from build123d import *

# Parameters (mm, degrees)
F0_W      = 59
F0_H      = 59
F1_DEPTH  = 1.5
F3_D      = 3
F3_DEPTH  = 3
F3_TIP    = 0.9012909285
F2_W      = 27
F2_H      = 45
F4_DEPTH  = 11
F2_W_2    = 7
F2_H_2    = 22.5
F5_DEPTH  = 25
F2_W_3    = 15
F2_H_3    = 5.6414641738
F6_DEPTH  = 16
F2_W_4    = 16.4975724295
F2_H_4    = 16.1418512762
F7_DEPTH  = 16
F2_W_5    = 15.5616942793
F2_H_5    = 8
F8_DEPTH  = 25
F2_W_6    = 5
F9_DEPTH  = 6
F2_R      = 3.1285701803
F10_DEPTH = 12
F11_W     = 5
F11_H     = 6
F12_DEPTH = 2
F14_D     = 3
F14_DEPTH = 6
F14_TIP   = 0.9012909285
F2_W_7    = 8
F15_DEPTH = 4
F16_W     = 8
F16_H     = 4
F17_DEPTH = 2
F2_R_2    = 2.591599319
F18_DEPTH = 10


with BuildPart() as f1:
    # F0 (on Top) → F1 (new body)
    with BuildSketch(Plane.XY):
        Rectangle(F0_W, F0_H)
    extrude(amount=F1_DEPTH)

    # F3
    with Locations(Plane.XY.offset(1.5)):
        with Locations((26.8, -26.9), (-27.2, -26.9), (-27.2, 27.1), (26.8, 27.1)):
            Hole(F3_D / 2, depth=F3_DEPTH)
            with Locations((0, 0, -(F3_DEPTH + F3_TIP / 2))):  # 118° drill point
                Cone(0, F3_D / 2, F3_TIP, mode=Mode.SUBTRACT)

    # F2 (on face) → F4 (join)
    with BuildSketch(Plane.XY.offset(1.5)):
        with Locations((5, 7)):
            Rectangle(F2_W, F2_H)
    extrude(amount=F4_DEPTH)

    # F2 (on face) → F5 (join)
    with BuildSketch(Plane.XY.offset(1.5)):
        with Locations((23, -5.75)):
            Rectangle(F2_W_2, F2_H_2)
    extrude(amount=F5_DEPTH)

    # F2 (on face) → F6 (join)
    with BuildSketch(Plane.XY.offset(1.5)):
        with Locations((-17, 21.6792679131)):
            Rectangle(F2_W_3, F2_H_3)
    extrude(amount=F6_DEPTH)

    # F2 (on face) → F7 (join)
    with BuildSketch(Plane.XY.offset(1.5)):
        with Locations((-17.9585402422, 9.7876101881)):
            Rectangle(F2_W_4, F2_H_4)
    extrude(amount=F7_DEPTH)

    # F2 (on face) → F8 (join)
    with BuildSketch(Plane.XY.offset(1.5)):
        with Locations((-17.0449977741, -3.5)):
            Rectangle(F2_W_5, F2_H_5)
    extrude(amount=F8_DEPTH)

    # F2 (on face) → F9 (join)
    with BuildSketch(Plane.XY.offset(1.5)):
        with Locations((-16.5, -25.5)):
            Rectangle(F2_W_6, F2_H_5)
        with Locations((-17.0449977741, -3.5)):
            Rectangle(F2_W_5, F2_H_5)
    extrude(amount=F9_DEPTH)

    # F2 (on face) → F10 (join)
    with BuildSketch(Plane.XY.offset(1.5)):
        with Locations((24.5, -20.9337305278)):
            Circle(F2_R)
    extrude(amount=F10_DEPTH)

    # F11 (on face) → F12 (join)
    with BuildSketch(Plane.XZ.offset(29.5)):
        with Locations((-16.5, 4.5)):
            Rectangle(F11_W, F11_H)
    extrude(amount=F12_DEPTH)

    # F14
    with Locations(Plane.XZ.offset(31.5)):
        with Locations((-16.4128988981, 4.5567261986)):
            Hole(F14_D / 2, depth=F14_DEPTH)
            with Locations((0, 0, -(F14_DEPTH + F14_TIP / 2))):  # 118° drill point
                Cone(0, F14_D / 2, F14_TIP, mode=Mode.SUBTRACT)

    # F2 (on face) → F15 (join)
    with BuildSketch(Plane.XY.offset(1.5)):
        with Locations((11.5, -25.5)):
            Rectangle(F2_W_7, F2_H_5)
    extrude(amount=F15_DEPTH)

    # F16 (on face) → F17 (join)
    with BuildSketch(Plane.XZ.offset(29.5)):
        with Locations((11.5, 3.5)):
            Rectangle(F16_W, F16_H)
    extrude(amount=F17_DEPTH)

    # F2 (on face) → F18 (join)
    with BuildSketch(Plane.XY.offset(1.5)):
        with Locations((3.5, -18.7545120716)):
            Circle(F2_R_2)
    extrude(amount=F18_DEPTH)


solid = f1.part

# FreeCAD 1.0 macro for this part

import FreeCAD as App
import Part
import Sketcher

doc = App.newDocument("Part")
body = doc.addObject("PartDesign::Body", "Body")

# Sketch on XY plane
sketch1 = body.newObject("Sketcher::SketchObject", "Sketch")
sketch1.AttachmentSupport = (doc.getObject("XY_Plane"), [""])
sketch1.MapMode = "FlatFace"
sketch1.addGeometry(Part.LineSegment(App.Vector(-29.5, 29.5, 0), App.Vector(-29.5, -29.5, 0)), False)
sketch1.addGeometry(Part.LineSegment(App.Vector(-29.5, -29.5, 0), App.Vector(29.5, -29.5, 0)), False)
sketch1.addGeometry(Part.LineSegment(App.Vector(29.5, -29.5, 0), App.Vector(29.5, 29.5, 0)), False)
sketch1.addGeometry(Part.LineSegment(App.Vector(29.5, 29.5, 0), App.Vector(-29.5, 29.5, 0)), False)
sketch1.addConstraint(Sketcher.Constraint("Coincident", 0, 2, 1, 1))
sketch1.addConstraint(Sketcher.Constraint("Coincident", 1, 2, 2, 1))
sketch1.addConstraint(Sketcher.Constraint("Coincident", 2, 2, 3, 1))
sketch1.addConstraint(Sketcher.Constraint("Coincident", 3, 2, 0, 1))
sketch1.addConstraint(Sketcher.Constraint("Vertical", 0))
sketch1.addConstraint(Sketcher.Constraint("Horizontal", 1))
sketch1.addConstraint(Sketcher.Constraint("Vertical", 2))
sketch1.addConstraint(Sketcher.Constraint("Horizontal", 3))
sketch1.addConstraint(Sketcher.Constraint("Symmetric", 0, 2, 2, 2, -1, 1))
sketch1.addConstraint(Sketcher.Constraint("Equal", 3, 0))
sketch1.addConstraint(Sketcher.Constraint("DistanceX", 1, 1, 1, 2, 59.0))
pad1 = body.newObject("PartDesign::Pad", "Pad")
pad1.Profile = sketch1
pad1.Length = 1.5

# Sketch on XY plane
sketch2 = body.newObject("Sketcher::SketchObject", "Sketch001")
sketch2.AttachmentSupport = (doc.getObject("XY_Plane"), [""])
sketch2.MapMode = "FlatFace"
sketch2.AttachmentOffset = App.Placement(App.Vector(0, 0, 1.5), App.Rotation())
sketch2.addGeometry(Part.Circle(App.Vector(26.8, -26.9, 0), App.Vector(0, 0, 1), 1.5), False)
sketch2.addGeometry(Part.Circle(App.Vector(-27.2, -26.9, 0), App.Vector(0, 0, 1), 1.5), False)
sketch2.addGeometry(Part.Circle(App.Vector(-27.2, 27.1, 0), App.Vector(0, 0, 1), 1.5), False)
sketch2.addGeometry(Part.Circle(App.Vector(26.8, 27.1, 0), App.Vector(0, 0, 1), 1.5), False)
sketch2.addConstraint(Sketcher.Constraint("Equal", 0, 1))
sketch2.addConstraint(Sketcher.Constraint("Equal", 1, 2))
sketch2.addConstraint(Sketcher.Constraint("Equal", 2, 3))
sketch2.addConstraint(Sketcher.Constraint("Horizontal", 0, 3, 1, 3))
sketch2.addConstraint(Sketcher.Constraint("Horizontal", 2, 3, 3, 3))
sketch2.addConstraint(Sketcher.Constraint("Vertical", 1, 3, 2, 3))
sketch2.addConstraint(Sketcher.Constraint("Vertical", 0, 3, 3, 3))
sketch2.addConstraint(Sketcher.Constraint("Diameter", 0, 3.0))
sketch2.addConstraint(Sketcher.Constraint("DistanceX", 1, 3, 0, 3, 54.0))
sketch2.addConstraint(Sketcher.Constraint("DistanceY", 1, 3, 2, 3, 54.0))
sketch2.addConstraint(Sketcher.Constraint("DistanceX", -1, 1, 0, 3, 26.8))
sketch2.addConstraint(Sketcher.Constraint("DistanceY", 0, 3, -1, 1, 26.9))
doc.recompute()
hole = body.newObject("PartDesign::Hole", "Hole")
hole.Profile = sketch2
hole.ThreadType = "None"
hole.Diameter = 3
hole.DepthType = "Dimension"
hole.Depth = 3
hole.DrillPoint = "Angled"
hole.DrillPointAngle = 118

# Sketch on XY plane
sketch3 = body.newObject("Sketcher::SketchObject", "Sketch002")
sketch3.AttachmentSupport = (doc.getObject("XY_Plane"), [""])
sketch3.MapMode = "FlatFace"
sketch3.AttachmentOffset = App.Placement(App.Vector(0, 0, 1.5), App.Rotation())
sketch3.addGeometry(Part.LineSegment(App.Vector(-8.5, 29.5, 0), App.Vector(-8.5, -15.5, 0)), False)
sketch3.addGeometry(Part.LineSegment(App.Vector(-8.5, -15.5, 0), App.Vector(18.5, -15.5, 0)), False)
sketch3.addGeometry(Part.LineSegment(App.Vector(18.5, -15.5, 0), App.Vector(18.5, 29.5, 0)), False)
sketch3.addGeometry(Part.LineSegment(App.Vector(18.5, 29.5, 0), App.Vector(-8.5, 29.5, 0)), False)
sketch3.addConstraint(Sketcher.Constraint("Coincident", 0, 2, 1, 1))
sketch3.addConstraint(Sketcher.Constraint("Coincident", 1, 2, 2, 1))
sketch3.addConstraint(Sketcher.Constraint("Coincident", 2, 2, 3, 1))
sketch3.addConstraint(Sketcher.Constraint("Coincident", 3, 2, 0, 1))
sketch3.addConstraint(Sketcher.Constraint("Vertical", 0))
sketch3.addConstraint(Sketcher.Constraint("Horizontal", 1))
sketch3.addConstraint(Sketcher.Constraint("Vertical", 2))
sketch3.addConstraint(Sketcher.Constraint("Horizontal", 3))
sketch3.addConstraint(Sketcher.Constraint("DistanceX", 1, 1, 1, 2, 27.0))
sketch3.addConstraint(Sketcher.Constraint("DistanceY", 0, 2, 0, 1, 45.0))
sketch3.addConstraint(Sketcher.Constraint("DistanceX", 0, 2, -1, 1, 8.5))
sketch3.addConstraint(Sketcher.Constraint("DistanceY", 0, 2, -1, 1, 15.5))
pad2 = body.newObject("PartDesign::Pad", "Pad001")
pad2.Profile = sketch3
pad2.Length = 11

# Sketch on XY plane
sketch4 = body.newObject("Sketcher::SketchObject", "Sketch003")
sketch4.AttachmentSupport = (doc.getObject("XY_Plane"), [""])
sketch4.MapMode = "FlatFace"
sketch4.AttachmentOffset = App.Placement(App.Vector(0, 0, 1.5), App.Rotation())
sketch4.addGeometry(Part.LineSegment(App.Vector(19.5, 5.5, 0), App.Vector(19.5, -17, 0)), False)
sketch4.addGeometry(Part.LineSegment(App.Vector(19.5, -17, 0), App.Vector(26.5, -17, 0)), False)
sketch4.addGeometry(Part.LineSegment(App.Vector(26.5, -17, 0), App.Vector(26.5, 5.5, 0)), False)
sketch4.addGeometry(Part.LineSegment(App.Vector(26.5, 5.5, 0), App.Vector(19.5, 5.5, 0)), False)
sketch4.addConstraint(Sketcher.Constraint("Coincident", 0, 2, 1, 1))
sketch4.addConstraint(Sketcher.Constraint("Coincident", 1, 2, 2, 1))
sketch4.addConstraint(Sketcher.Constraint("Coincident", 2, 2, 3, 1))
sketch4.addConstraint(Sketcher.Constraint("Coincident", 3, 2, 0, 1))
sketch4.addConstraint(Sketcher.Constraint("Vertical", 0))
sketch4.addConstraint(Sketcher.Constraint("Horizontal", 1))
sketch4.addConstraint(Sketcher.Constraint("Vertical", 2))
sketch4.addConstraint(Sketcher.Constraint("Horizontal", 3))
sketch4.addConstraint(Sketcher.Constraint("DistanceX", 1, 1, 1, 2, 7.0))
sketch4.addConstraint(Sketcher.Constraint("DistanceY", 0, 2, 0, 1, 22.5))
sketch4.addConstraint(Sketcher.Constraint("DistanceY", 0, 2, -1, 1, 17.0))
sketch4.addConstraint(Sketcher.Constraint("DistanceX", -1, 1, 0, 2, 19.5))
pad3 = body.newObject("PartDesign::Pad", "Pad002")
pad3.Profile = sketch4
pad3.Length = 25

# Sketch on XY plane
sketch5 = body.newObject("Sketcher::SketchObject", "Sketch004")
sketch5.AttachmentSupport = (doc.getObject("XY_Plane"), [""])
sketch5.MapMode = "FlatFace"
sketch5.AttachmentOffset = App.Placement(App.Vector(0, 0, 1.5), App.Rotation())
sketch5.addGeometry(Part.LineSegment(App.Vector(-24.5, 24.5, 0), App.Vector(-24.5, 18.858536, 0)), False)
sketch5.addGeometry(Part.LineSegment(App.Vector(-24.5, 18.858536, 0), App.Vector(-9.5, 18.858536, 0)), False)
sketch5.addGeometry(Part.LineSegment(App.Vector(-9.5, 18.858536, 0), App.Vector(-9.5, 24.5, 0)), False)
sketch5.addGeometry(Part.LineSegment(App.Vector(-9.5, 24.5, 0), App.Vector(-24.5, 24.5, 0)), False)
sketch5.addConstraint(Sketcher.Constraint("Coincident", 0, 2, 1, 1))
sketch5.addConstraint(Sketcher.Constraint("Coincident", 1, 2, 2, 1))
sketch5.addConstraint(Sketcher.Constraint("Coincident", 2, 2, 3, 1))
sketch5.addConstraint(Sketcher.Constraint("Coincident", 3, 2, 0, 1))
sketch5.addConstraint(Sketcher.Constraint("Vertical", 0))
sketch5.addConstraint(Sketcher.Constraint("Horizontal", 1))
sketch5.addConstraint(Sketcher.Constraint("Vertical", 2))
sketch5.addConstraint(Sketcher.Constraint("Horizontal", 3))
sketch5.addConstraint(Sketcher.Constraint("DistanceX", 1, 1, 1, 2, 15.0))
sketch5.addConstraint(Sketcher.Constraint("DistanceX", 0, 2, -1, 1, 24.5))
sketch5.addConstraint(Sketcher.Constraint("DistanceY", -1, 1, 2, 2, 24.5))
sketch5.addConstraint(Sketcher.Constraint("DistanceY", 0, 2, 0, 1, 5.641464))
pad4 = body.newObject("PartDesign::Pad", "Pad003")
pad4.Profile = sketch5
pad4.Length = 16

# Sketch on XY plane
sketch6 = body.newObject("Sketcher::SketchObject", "Sketch005")
sketch6.AttachmentSupport = (doc.getObject("XY_Plane"), [""])
sketch6.MapMode = "FlatFace"
sketch6.AttachmentOffset = App.Placement(App.Vector(0, 0, 1.5), App.Rotation())
sketch6.addGeometry(Part.LineSegment(App.Vector(-26.207326, 17.858536, 0), App.Vector(-26.207326, 1.716685, 0)), False)
sketch6.addGeometry(Part.LineSegment(App.Vector(-26.207326, 1.716685, 0), App.Vector(-9.709754, 1.716685, 0)), False)
sketch6.addGeometry(Part.LineSegment(App.Vector(-9.709754, 1.716685, 0), App.Vector(-9.709754, 17.858536, 0)), False)
sketch6.addGeometry(Part.LineSegment(App.Vector(-9.709754, 17.858536, 0), App.Vector(-26.207326, 17.858536, 0)), False)
sketch6.addConstraint(Sketcher.Constraint("Coincident", 0, 2, 1, 1))
sketch6.addConstraint(Sketcher.Constraint("Coincident", 1, 2, 2, 1))
sketch6.addConstraint(Sketcher.Constraint("Coincident", 2, 2, 3, 1))
sketch6.addConstraint(Sketcher.Constraint("Coincident", 3, 2, 0, 1))
sketch6.addConstraint(Sketcher.Constraint("Vertical", 0))
sketch6.addConstraint(Sketcher.Constraint("Horizontal", 1))
sketch6.addConstraint(Sketcher.Constraint("Vertical", 2))
sketch6.addConstraint(Sketcher.Constraint("Horizontal", 3))
sketch6.addConstraint(Sketcher.Constraint("DistanceY", 0, 2, 0, 1, 16.141851))
sketch6.addConstraint(Sketcher.Constraint("DistanceX", 1, 1, 1, 2, 16.497572))
sketch6.addConstraint(Sketcher.Constraint("DistanceX", 0, 2, -1, 1, 26.207326))
sketch6.addConstraint(Sketcher.Constraint("DistanceY", -1, 1, 0, 2, 1.716685))
pad5 = body.newObject("PartDesign::Pad", "Pad004")
pad5.Profile = sketch6
pad5.Length = 16

# Sketch on XY plane
sketch7 = body.newObject("Sketcher::SketchObject", "Sketch006")
sketch7.AttachmentSupport = (doc.getObject("XY_Plane"), [""])
sketch7.MapMode = "FlatFace"
sketch7.AttachmentOffset = App.Placement(App.Vector(0, 0, 1.5), App.Rotation())
sketch7.addGeometry(Part.LineSegment(App.Vector(-24.825845, 0.5, 0), App.Vector(-24.825845, -7.5, 0)), False)
sketch7.addGeometry(Part.LineSegment(App.Vector(-24.825845, -7.5, 0), App.Vector(-9.264151, -7.5, 0)), False)
sketch7.addGeometry(Part.LineSegment(App.Vector(-9.264151, -7.5, 0), App.Vector(-9.264151, 0.5, 0)), False)
sketch7.addGeometry(Part.LineSegment(App.Vector(-9.264151, 0.5, 0), App.Vector(-24.825845, 0.5, 0)), False)
sketch7.addConstraint(Sketcher.Constraint("Coincident", 0, 2, 1, 1))
sketch7.addConstraint(Sketcher.Constraint("Coincident", 1, 2, 2, 1))
sketch7.addConstraint(Sketcher.Constraint("Coincident", 2, 2, 3, 1))
sketch7.addConstraint(Sketcher.Constraint("Coincident", 3, 2, 0, 1))
sketch7.addConstraint(Sketcher.Constraint("Vertical", 0))
sketch7.addConstraint(Sketcher.Constraint("Horizontal", 1))
sketch7.addConstraint(Sketcher.Constraint("Vertical", 2))
sketch7.addConstraint(Sketcher.Constraint("Horizontal", 3))
sketch7.addConstraint(Sketcher.Constraint("DistanceY", 0, 2, 0, 1, 8.0))
sketch7.addConstraint(Sketcher.Constraint("DistanceY", 0, 2, -1, 1, 7.5))
sketch7.addConstraint(Sketcher.Constraint("DistanceX", 1, 1, 1, 2, 15.561694))
sketch7.addConstraint(Sketcher.Constraint("DistanceX", 1, 2, -1, 1, 9.264151))
pad6 = body.newObject("PartDesign::Pad", "Pad005")
pad6.Profile = sketch7
pad6.Length = 25

# Sketch on XY plane
sketch8 = body.newObject("Sketcher::SketchObject", "Sketch007")
sketch8.AttachmentSupport = (doc.getObject("XY_Plane"), [""])
sketch8.MapMode = "FlatFace"
sketch8.AttachmentOffset = App.Placement(App.Vector(0, 0, 1.5), App.Rotation())
sketch8.addGeometry(Part.LineSegment(App.Vector(-19, -21.5, 0), App.Vector(-19, -29.5, 0)), False)
sketch8.addGeometry(Part.LineSegment(App.Vector(-19, -29.5, 0), App.Vector(-14, -29.5, 0)), False)
sketch8.addGeometry(Part.LineSegment(App.Vector(-14, -29.5, 0), App.Vector(-14, -21.5, 0)), False)
sketch8.addGeometry(Part.LineSegment(App.Vector(-14, -21.5, 0), App.Vector(-19, -21.5, 0)), False)
sketch8.addGeometry(Part.LineSegment(App.Vector(-24.825845, 0.5, 0), App.Vector(-24.825845, -7.5, 0)), False)
sketch8.addGeometry(Part.LineSegment(App.Vector(-24.825845, -7.5, 0), App.Vector(-9.264151, -7.5, 0)), False)
sketch8.addGeometry(Part.LineSegment(App.Vector(-9.264151, -7.5, 0), App.Vector(-9.264151, 0.5, 0)), False)
sketch8.addGeometry(Part.LineSegment(App.Vector(-9.264151, 0.5, 0), App.Vector(-24.825845, 0.5, 0)), False)
sketch8.addConstraint(Sketcher.Constraint("Coincident", 0, 2, 1, 1))
sketch8.addConstraint(Sketcher.Constraint("Coincident", 1, 2, 2, 1))
sketch8.addConstraint(Sketcher.Constraint("Coincident", 2, 2, 3, 1))
sketch8.addConstraint(Sketcher.Constraint("Coincident", 3, 2, 0, 1))
sketch8.addConstraint(Sketcher.Constraint("Coincident", 4, 2, 5, 1))
sketch8.addConstraint(Sketcher.Constraint("Coincident", 5, 2, 6, 1))
sketch8.addConstraint(Sketcher.Constraint("Coincident", 6, 2, 7, 1))
sketch8.addConstraint(Sketcher.Constraint("Coincident", 7, 2, 4, 1))
sketch8.addConstraint(Sketcher.Constraint("Vertical", 0))
sketch8.addConstraint(Sketcher.Constraint("Horizontal", 1))
sketch8.addConstraint(Sketcher.Constraint("Vertical", 2))
sketch8.addConstraint(Sketcher.Constraint("Horizontal", 3))
sketch8.addConstraint(Sketcher.Constraint("Vertical", 4))
sketch8.addConstraint(Sketcher.Constraint("Horizontal", 5))
sketch8.addConstraint(Sketcher.Constraint("Vertical", 6))
sketch8.addConstraint(Sketcher.Constraint("Horizontal", 7))
sketch8.addConstraint(Sketcher.Constraint("Equal", 2, 4))
sketch8.addConstraint(Sketcher.Constraint("DistanceX", 1, 1, 1, 2, 5.0))
sketch8.addConstraint(Sketcher.Constraint("DistanceY", 0, 2, 0, 1, 8.0))
sketch8.addConstraint(Sketcher.Constraint("DistanceX", 0, 2, -1, 1, 19.0))
sketch8.addConstraint(Sketcher.Constraint("DistanceY", 3, 2, 4, 2, 14.0))
sketch8.addConstraint(Sketcher.Constraint("DistanceY", 0, 2, -1, 1, 29.5))
sketch8.addConstraint(Sketcher.Constraint("DistanceX", 5, 1, 5, 2, 15.561694))
sketch8.addConstraint(Sketcher.Constraint("DistanceX", 5, 2, -1, 1, 9.264151))
pad7 = body.newObject("PartDesign::Pad", "Pad006")
pad7.Profile = sketch8
pad7.Length = 6

# Sketch on XY plane
sketch9 = body.newObject("Sketcher::SketchObject", "Sketch008")
sketch9.AttachmentSupport = (doc.getObject("XY_Plane"), [""])
sketch9.MapMode = "FlatFace"
sketch9.AttachmentOffset = App.Placement(App.Vector(0, 0, 1.5), App.Rotation())
sketch9.addGeometry(Part.Circle(App.Vector(24.5, -20.933731, 0), App.Vector(0, 0, 1), 3.12857), False)
sketch9.addConstraint(Sketcher.Constraint("DistanceX", -1, 1, 0, 3, 24.5))
sketch9.addConstraint(Sketcher.Constraint("Diameter", 0, 6.25714))
sketch9.addConstraint(Sketcher.Constraint("DistanceY", 0, 3, -1, 1, 20.933731))
pad8 = body.newObject("PartDesign::Pad", "Pad007")
pad8.Profile = sketch9
pad8.Length = 12

# Sketch on XZ plane
sketch10 = body.newObject("Sketcher::SketchObject", "Sketch009")
sketch10.AttachmentSupport = (doc.getObject("XZ_Plane"), [""])
sketch10.MapMode = "FlatFace"
sketch10.AttachmentOffset = App.Placement(App.Vector(0, 0, 29.5), App.Rotation())
sketch10.addGeometry(Part.LineSegment(App.Vector(-19, 7.5, 0), App.Vector(-19, 1.5, 0)), False)
sketch10.addGeometry(Part.LineSegment(App.Vector(-19, 1.5, 0), App.Vector(-14, 1.5, 0)), False)
sketch10.addGeometry(Part.LineSegment(App.Vector(-14, 1.5, 0), App.Vector(-14, 7.5, 0)), False)
sketch10.addGeometry(Part.LineSegment(App.Vector(-14, 7.5, 0), App.Vector(-19, 7.5, 0)), False)
sketch10.addConstraint(Sketcher.Constraint("Coincident", 0, 2, 1, 1))
sketch10.addConstraint(Sketcher.Constraint("Coincident", 1, 2, 2, 1))
sketch10.addConstraint(Sketcher.Constraint("Coincident", 2, 2, 3, 1))
sketch10.addConstraint(Sketcher.Constraint("Coincident", 3, 2, 0, 1))
sketch10.addConstraint(Sketcher.Constraint("Vertical", 0))
sketch10.addConstraint(Sketcher.Constraint("Horizontal", 1))
sketch10.addConstraint(Sketcher.Constraint("Vertical", 2))
sketch10.addConstraint(Sketcher.Constraint("Horizontal", 3))
sketch10.addConstraint(Sketcher.Constraint("DistanceX", 1, 1, 1, 2, 5.0))
sketch10.addConstraint(Sketcher.Constraint("DistanceY", 0, 2, 0, 1, 6.0))
sketch10.addConstraint(Sketcher.Constraint("DistanceX", 0, 2, -1, 1, 19.0))
sketch10.addConstraint(Sketcher.Constraint("DistanceY", -1, 1, 0, 2, 1.5))
pad9 = body.newObject("PartDesign::Pad", "Pad008")
pad9.Profile = sketch10
pad9.Length = 2

# Sketch on XZ plane
sketch11 = body.newObject("Sketcher::SketchObject", "Sketch010")
sketch11.AttachmentSupport = (doc.getObject("XZ_Plane"), [""])
sketch11.MapMode = "FlatFace"
sketch11.AttachmentOffset = App.Placement(App.Vector(0, 0, 31.5), App.Rotation())
sketch11.addGeometry(Part.Circle(App.Vector(-16.412899, 4.556726, 0), App.Vector(0, 0, 1), 1.5), False)
sketch11.addConstraint(Sketcher.Constraint("Diameter", 0, 3.0))
sketch11.addConstraint(Sketcher.Constraint("DistanceX", 0, 3, -1, 1, 16.412899))
sketch11.addConstraint(Sketcher.Constraint("DistanceY", -1, 1, 0, 3, 4.556726))
doc.recompute()
hole2 = body.newObject("PartDesign::Hole", "Hole001")
hole2.Profile = sketch11
hole2.ThreadType = "None"
hole2.Diameter = 3
hole2.DepthType = "Dimension"
hole2.Depth = 6
hole2.DrillPoint = "Angled"
hole2.DrillPointAngle = 118

# Sketch on XY plane
sketch12 = body.newObject("Sketcher::SketchObject", "Sketch011")
sketch12.AttachmentSupport = (doc.getObject("XY_Plane"), [""])
sketch12.MapMode = "FlatFace"
sketch12.AttachmentOffset = App.Placement(App.Vector(0, 0, 1.5), App.Rotation())
sketch12.addGeometry(Part.LineSegment(App.Vector(7.5, -21.5, 0), App.Vector(7.5, -29.5, 0)), False)
sketch12.addGeometry(Part.LineSegment(App.Vector(7.5, -29.5, 0), App.Vector(15.5, -29.5, 0)), False)
sketch12.addGeometry(Part.LineSegment(App.Vector(15.5, -29.5, 0), App.Vector(15.5, -21.5, 0)), False)
sketch12.addGeometry(Part.LineSegment(App.Vector(15.5, -21.5, 0), App.Vector(7.5, -21.5, 0)), False)
sketch12.addConstraint(Sketcher.Constraint("Coincident", 0, 2, 1, 1))
sketch12.addConstraint(Sketcher.Constraint("Coincident", 1, 2, 2, 1))
sketch12.addConstraint(Sketcher.Constraint("Coincident", 2, 2, 3, 1))
sketch12.addConstraint(Sketcher.Constraint("Coincident", 3, 2, 0, 1))
sketch12.addConstraint(Sketcher.Constraint("Vertical", 0))
sketch12.addConstraint(Sketcher.Constraint("Horizontal", 1))
sketch12.addConstraint(Sketcher.Constraint("Vertical", 2))
sketch12.addConstraint(Sketcher.Constraint("Horizontal", 3))
sketch12.addConstraint(Sketcher.Constraint("Equal", 3, 0))
sketch12.addConstraint(Sketcher.Constraint("DistanceX", 1, 1, 1, 2, 8.0))
sketch12.addConstraint(Sketcher.Constraint("DistanceX", -1, 1, 0, 2, 7.5))
sketch12.addConstraint(Sketcher.Constraint("DistanceY", 0, 2, -1, 1, 29.5))
pad10 = body.newObject("PartDesign::Pad", "Pad009")
pad10.Profile = sketch12
pad10.Length = 4

# Sketch on XZ plane
sketch13 = body.newObject("Sketcher::SketchObject", "Sketch012")
sketch13.AttachmentSupport = (doc.getObject("XZ_Plane"), [""])
sketch13.MapMode = "FlatFace"
sketch13.AttachmentOffset = App.Placement(App.Vector(0, 0, 29.5), App.Rotation())
sketch13.addGeometry(Part.LineSegment(App.Vector(7.5, 5.5, 0), App.Vector(7.5, 1.5, 0)), False)
sketch13.addGeometry(Part.LineSegment(App.Vector(7.5, 1.5, 0), App.Vector(15.5, 1.5, 0)), False)
sketch13.addGeometry(Part.LineSegment(App.Vector(15.5, 1.5, 0), App.Vector(15.5, 5.5, 0)), False)
sketch13.addGeometry(Part.LineSegment(App.Vector(15.5, 5.5, 0), App.Vector(7.5, 5.5, 0)), False)
sketch13.addConstraint(Sketcher.Constraint("Coincident", 0, 2, 1, 1))
sketch13.addConstraint(Sketcher.Constraint("Coincident", 1, 2, 2, 1))
sketch13.addConstraint(Sketcher.Constraint("Coincident", 2, 2, 3, 1))
sketch13.addConstraint(Sketcher.Constraint("Coincident", 3, 2, 0, 1))
sketch13.addConstraint(Sketcher.Constraint("Vertical", 0))
sketch13.addConstraint(Sketcher.Constraint("Horizontal", 1))
sketch13.addConstraint(Sketcher.Constraint("Vertical", 2))
sketch13.addConstraint(Sketcher.Constraint("Horizontal", 3))
sketch13.addConstraint(Sketcher.Constraint("DistanceX", 1, 1, 1, 2, 8.0))
sketch13.addConstraint(Sketcher.Constraint("DistanceY", 0, 2, 0, 1, 4.0))
sketch13.addConstraint(Sketcher.Constraint("DistanceX", -1, 1, 0, 2, 7.5))
sketch13.addConstraint(Sketcher.Constraint("DistanceY", -1, 1, 0, 2, 1.5))
pad11 = body.newObject("PartDesign::Pad", "Pad010")
pad11.Profile = sketch13
pad11.Length = 2

# Sketch on XY plane
sketch14 = body.newObject("Sketcher::SketchObject", "Sketch013")
sketch14.AttachmentSupport = (doc.getObject("XY_Plane"), [""])
sketch14.MapMode = "FlatFace"
sketch14.AttachmentOffset = App.Placement(App.Vector(0, 0, 1.5), App.Rotation())
sketch14.addGeometry(Part.Circle(App.Vector(3.5, -18.754512, 0), App.Vector(0, 0, 1), 2.591599), False)
sketch14.addConstraint(Sketcher.Constraint("Diameter", 0, 5.183199))
sketch14.addConstraint(Sketcher.Constraint("DistanceX", -1, 1, 0, 3, 3.5))
sketch14.addConstraint(Sketcher.Constraint("DistanceY", 0, 3, -1, 1, 18.754512))
pad12 = body.newObject("PartDesign::Pad", "Pad011")
pad12.Profile = sketch14
pad12.Length = 10

doc.recompute()
